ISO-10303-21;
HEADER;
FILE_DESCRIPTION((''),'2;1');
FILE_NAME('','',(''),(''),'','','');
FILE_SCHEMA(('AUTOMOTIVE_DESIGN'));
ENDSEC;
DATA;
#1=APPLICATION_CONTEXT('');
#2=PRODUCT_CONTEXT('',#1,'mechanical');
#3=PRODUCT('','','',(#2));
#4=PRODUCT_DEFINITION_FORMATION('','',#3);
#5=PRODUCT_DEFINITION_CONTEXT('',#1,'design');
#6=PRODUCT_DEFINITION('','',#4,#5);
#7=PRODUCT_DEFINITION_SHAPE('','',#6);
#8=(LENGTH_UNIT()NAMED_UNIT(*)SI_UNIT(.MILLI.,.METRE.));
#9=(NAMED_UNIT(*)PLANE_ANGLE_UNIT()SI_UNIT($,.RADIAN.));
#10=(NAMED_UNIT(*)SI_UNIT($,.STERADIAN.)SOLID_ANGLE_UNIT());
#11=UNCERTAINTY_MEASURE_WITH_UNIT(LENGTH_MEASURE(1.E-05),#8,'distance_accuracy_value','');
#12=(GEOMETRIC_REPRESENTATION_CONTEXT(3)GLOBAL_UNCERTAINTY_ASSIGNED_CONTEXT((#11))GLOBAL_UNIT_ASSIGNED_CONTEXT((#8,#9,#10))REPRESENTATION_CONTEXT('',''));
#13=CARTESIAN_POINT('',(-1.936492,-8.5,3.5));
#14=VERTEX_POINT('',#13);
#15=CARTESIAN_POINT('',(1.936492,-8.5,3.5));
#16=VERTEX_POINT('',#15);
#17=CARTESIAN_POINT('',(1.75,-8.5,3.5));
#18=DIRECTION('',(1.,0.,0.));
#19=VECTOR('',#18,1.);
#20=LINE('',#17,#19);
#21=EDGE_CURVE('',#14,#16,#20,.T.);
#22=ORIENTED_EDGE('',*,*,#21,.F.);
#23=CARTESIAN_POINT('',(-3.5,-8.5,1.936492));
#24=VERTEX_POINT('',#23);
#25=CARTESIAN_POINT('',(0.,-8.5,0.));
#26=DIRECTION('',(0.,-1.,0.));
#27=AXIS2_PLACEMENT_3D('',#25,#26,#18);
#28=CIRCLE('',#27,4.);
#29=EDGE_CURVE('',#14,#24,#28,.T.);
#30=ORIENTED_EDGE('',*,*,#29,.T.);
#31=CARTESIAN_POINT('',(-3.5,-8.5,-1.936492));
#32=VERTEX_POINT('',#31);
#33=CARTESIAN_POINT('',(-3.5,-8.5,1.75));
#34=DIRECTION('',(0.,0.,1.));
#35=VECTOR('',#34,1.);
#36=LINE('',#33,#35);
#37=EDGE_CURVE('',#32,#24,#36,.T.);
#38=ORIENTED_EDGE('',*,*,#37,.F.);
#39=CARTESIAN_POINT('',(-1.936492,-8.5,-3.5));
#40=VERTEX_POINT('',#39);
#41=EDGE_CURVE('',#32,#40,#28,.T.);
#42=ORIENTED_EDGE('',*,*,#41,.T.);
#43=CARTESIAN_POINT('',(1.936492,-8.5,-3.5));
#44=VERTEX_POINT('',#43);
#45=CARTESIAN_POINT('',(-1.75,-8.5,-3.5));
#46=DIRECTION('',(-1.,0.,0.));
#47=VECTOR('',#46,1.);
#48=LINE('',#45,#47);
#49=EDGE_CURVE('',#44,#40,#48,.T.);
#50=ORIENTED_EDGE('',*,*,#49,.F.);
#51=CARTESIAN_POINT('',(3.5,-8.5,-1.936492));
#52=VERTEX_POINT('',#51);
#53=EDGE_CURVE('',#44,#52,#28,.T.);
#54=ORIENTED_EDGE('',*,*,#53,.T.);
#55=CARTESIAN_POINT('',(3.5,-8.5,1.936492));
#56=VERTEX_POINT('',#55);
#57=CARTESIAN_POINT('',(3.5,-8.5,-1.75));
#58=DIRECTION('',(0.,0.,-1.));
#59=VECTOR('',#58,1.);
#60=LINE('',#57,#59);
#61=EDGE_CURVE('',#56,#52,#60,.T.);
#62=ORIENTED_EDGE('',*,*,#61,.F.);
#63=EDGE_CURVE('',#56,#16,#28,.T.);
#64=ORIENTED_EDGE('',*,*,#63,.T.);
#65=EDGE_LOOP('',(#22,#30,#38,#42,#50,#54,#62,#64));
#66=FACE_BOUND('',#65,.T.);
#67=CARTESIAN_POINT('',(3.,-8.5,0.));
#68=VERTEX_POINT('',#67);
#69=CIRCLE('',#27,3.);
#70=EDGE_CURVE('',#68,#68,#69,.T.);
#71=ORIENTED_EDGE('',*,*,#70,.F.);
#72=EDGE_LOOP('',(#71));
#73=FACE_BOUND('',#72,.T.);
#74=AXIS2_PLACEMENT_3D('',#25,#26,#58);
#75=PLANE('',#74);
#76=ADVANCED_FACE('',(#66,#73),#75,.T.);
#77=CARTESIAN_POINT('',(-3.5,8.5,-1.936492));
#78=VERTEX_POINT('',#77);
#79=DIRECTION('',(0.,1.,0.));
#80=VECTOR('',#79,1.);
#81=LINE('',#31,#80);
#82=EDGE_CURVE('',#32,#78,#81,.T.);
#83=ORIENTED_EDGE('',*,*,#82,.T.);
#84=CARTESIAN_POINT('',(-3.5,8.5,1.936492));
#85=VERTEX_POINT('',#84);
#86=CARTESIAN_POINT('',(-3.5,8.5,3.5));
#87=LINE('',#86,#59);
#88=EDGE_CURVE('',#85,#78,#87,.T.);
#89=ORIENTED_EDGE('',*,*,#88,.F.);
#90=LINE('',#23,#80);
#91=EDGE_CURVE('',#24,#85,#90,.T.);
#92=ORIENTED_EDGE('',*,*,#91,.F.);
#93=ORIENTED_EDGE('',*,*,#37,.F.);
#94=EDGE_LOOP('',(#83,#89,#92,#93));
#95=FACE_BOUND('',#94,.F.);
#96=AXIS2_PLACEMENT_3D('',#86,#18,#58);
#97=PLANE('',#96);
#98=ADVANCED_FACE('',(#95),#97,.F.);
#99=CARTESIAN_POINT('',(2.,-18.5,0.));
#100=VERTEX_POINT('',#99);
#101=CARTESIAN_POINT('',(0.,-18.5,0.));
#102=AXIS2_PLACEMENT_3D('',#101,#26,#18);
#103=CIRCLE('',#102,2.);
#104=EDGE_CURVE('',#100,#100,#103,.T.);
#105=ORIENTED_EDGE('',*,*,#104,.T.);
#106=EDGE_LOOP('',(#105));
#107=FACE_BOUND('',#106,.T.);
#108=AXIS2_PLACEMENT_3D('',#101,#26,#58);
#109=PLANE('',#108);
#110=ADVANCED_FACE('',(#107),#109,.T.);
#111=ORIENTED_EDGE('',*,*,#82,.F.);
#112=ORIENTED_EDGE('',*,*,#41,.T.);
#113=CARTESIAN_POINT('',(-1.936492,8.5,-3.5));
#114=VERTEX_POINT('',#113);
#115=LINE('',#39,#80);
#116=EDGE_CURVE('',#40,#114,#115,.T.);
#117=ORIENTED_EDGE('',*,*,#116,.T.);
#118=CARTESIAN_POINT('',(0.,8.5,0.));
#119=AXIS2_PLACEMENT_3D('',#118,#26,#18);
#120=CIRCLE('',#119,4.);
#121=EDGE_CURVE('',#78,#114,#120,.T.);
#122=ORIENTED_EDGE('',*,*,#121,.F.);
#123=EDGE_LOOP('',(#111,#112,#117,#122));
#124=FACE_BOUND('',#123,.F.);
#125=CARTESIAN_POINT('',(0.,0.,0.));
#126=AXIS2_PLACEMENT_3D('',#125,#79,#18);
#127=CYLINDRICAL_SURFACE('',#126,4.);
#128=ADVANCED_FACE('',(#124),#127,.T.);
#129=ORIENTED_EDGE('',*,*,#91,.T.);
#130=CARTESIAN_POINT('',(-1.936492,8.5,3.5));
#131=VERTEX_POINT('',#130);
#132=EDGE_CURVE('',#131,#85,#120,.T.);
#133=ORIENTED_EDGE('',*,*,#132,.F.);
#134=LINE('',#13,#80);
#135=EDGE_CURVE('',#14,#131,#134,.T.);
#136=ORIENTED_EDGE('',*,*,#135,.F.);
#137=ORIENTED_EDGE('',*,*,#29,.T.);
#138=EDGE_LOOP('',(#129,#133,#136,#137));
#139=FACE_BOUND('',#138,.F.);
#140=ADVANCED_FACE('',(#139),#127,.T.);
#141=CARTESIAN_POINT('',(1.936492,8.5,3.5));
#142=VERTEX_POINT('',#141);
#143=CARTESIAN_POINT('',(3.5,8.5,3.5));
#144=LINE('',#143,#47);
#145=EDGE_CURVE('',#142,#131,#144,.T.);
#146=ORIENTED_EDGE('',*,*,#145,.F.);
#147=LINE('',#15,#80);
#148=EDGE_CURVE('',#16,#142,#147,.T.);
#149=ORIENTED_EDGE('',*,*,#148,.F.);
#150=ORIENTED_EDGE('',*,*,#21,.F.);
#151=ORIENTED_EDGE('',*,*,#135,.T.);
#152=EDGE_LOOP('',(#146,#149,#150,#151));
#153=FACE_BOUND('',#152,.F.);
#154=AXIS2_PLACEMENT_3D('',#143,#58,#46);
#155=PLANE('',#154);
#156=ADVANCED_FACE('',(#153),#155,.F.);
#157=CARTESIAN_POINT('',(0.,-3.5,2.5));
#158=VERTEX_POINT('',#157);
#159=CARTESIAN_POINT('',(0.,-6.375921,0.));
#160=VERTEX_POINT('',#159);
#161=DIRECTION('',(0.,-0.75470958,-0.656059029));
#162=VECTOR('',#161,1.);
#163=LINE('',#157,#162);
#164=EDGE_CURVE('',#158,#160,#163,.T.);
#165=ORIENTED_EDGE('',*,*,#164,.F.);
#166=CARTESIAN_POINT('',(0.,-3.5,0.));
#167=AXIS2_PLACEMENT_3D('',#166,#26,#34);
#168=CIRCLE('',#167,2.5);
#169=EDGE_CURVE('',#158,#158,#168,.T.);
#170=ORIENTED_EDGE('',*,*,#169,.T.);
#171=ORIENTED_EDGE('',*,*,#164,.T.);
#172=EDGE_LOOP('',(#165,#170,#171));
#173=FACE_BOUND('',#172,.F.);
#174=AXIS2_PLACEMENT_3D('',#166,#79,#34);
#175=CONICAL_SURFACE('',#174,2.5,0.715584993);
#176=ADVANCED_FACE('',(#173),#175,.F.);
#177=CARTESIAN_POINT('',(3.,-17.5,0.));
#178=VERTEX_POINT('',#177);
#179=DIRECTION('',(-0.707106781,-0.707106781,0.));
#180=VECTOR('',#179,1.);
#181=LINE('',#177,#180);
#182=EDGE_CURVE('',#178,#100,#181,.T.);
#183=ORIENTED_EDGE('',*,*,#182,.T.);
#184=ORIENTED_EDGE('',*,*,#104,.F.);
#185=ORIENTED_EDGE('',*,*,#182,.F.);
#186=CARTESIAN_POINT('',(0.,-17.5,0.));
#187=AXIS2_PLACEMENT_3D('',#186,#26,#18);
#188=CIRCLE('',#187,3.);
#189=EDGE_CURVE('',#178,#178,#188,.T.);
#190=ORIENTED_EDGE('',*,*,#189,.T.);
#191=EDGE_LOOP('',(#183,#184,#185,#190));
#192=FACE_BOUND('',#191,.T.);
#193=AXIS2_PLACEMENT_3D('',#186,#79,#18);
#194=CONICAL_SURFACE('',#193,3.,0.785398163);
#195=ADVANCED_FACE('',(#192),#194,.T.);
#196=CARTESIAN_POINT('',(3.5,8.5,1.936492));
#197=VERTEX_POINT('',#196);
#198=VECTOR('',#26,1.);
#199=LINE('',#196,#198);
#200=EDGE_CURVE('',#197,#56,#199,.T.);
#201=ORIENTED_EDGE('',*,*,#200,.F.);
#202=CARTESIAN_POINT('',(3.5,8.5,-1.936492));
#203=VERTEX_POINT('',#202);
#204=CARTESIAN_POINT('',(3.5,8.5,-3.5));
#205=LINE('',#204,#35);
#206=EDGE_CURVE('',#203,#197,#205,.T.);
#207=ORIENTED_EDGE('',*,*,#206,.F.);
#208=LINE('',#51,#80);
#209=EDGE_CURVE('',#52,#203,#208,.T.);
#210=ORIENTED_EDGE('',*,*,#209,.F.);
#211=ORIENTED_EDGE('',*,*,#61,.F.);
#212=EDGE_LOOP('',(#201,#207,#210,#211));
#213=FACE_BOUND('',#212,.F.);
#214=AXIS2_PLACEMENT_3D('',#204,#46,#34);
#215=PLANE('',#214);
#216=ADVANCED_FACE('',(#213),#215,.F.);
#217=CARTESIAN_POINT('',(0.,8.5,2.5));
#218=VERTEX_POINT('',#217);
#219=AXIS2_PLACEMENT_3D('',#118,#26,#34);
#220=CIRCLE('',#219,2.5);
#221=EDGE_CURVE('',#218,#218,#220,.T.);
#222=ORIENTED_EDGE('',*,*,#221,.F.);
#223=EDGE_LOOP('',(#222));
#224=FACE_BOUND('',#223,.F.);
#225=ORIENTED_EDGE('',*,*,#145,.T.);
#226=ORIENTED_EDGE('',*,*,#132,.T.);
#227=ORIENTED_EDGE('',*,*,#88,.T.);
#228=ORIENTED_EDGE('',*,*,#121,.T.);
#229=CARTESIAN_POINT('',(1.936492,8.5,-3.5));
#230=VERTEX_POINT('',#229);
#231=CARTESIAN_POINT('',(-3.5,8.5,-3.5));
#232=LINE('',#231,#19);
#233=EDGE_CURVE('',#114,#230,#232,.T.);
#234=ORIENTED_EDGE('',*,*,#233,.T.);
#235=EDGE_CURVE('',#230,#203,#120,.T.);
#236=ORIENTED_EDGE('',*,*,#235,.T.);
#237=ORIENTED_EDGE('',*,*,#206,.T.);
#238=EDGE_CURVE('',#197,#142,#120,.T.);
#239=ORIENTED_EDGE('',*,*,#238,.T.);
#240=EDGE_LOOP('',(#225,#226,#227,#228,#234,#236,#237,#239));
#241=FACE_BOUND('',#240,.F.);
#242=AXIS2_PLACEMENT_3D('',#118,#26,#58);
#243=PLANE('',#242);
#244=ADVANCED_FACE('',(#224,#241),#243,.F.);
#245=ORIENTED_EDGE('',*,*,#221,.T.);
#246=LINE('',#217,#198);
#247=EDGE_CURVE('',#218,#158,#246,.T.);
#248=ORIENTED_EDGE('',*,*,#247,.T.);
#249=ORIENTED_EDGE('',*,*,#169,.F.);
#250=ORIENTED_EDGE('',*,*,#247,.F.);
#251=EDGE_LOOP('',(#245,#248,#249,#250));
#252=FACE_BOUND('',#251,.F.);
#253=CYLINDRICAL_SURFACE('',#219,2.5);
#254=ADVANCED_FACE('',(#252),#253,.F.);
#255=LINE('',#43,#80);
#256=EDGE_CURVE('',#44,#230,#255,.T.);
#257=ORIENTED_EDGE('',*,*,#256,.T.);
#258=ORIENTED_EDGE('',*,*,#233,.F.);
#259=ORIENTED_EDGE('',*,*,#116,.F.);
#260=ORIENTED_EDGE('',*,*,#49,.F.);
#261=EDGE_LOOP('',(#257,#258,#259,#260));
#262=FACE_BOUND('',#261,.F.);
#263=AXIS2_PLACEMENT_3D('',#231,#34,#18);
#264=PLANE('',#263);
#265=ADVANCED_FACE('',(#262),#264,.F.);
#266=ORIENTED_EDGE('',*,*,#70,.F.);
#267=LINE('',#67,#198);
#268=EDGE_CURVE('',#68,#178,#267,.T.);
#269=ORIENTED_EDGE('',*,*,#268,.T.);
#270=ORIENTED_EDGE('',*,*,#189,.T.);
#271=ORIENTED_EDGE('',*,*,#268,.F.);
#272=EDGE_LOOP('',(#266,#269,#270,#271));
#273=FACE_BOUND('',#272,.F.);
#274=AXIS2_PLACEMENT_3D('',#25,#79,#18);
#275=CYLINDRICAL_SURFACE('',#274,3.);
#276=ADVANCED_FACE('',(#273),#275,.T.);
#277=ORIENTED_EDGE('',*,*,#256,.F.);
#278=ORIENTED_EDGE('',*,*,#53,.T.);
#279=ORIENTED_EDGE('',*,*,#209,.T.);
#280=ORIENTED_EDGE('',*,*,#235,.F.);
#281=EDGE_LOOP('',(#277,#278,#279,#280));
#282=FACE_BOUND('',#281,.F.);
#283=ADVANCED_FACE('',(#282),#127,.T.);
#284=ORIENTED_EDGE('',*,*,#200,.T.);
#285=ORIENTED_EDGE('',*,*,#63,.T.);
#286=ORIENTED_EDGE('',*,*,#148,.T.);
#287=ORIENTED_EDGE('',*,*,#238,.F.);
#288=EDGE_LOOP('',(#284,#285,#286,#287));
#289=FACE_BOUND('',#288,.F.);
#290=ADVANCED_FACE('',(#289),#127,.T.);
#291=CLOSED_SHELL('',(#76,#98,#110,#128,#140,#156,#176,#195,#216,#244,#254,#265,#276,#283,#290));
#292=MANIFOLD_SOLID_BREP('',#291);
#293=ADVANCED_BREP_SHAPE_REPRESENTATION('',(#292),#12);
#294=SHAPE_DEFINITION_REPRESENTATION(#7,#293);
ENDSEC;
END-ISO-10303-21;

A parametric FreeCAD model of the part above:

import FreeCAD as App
import Part
import Sketcher

V = App.Vector
Q = App.Units.Quantity


def edges_at(feature, points):
    """Names of the edges that pass closest to the given points."""
    edges = feature.Shape.Edges
    near = lambda p: min(range(len(edges)), key=lambda i: edges[i].distToShape(Part.Vertex(*p))[0])
    return sorted({f"Edge{near(p) + 1}" for p in points})


def add_polygon(sketch, points):
    """Adds a closed chain of lines whose ends are joined by coincident constraints."""
    first, n = sketch.GeometryCount, len(points)
    for a, b in zip(points, points[1:] + points[:1]):
        sketch.addGeometry(Part.LineSegment(App.Vector(*a, 0), App.Vector(*b, 0)), False)
    for i in range(n):
        sketch.addConstraint(Sketcher.Constraint("Coincident", first + i, 2, first + (i + 1) % n, 1))

doc = App.newDocument("Part")
body = doc.addObject("PartDesign::Body", "Body")

sketch1 = doc.addObject("Sketcher::SketchObject", "Sketch")
body.addObject(sketch1)
sketch1.AttachmentSupport = (doc.XZ_Plane, [""])
sketch1.MapMode = "FlatFace"
sketch1.addGeometry(Part.Circle(V(0, 0, 0), V(0, 0, 1), 4), False)
sketch1.addConstraint([
    Sketcher.Constraint("Coincident", 0, 3, -1, 1),
    Sketcher.Constraint("Diameter", 0, Q("8 mm")),
])
pad1 = doc.addObject("PartDesign::Pad", "Pad")
body.addObject(pad1)
pad1.Profile = sketch1
pad1.Length = 17
pad1.Midplane = True

sketch2 = doc.addObject("Sketcher::SketchObject", "Sketch001")
body.addObject(sketch2)
sketch2.AttachmentSupport = (doc.XZ_Plane, [""])
sketch2.MapMode = "FlatFace"
sketch2.AttachmentOffset = App.Placement(V(0, 0, 8.5), App.Rotation())
sketch2.addGeometry(Part.Circle(V(0, 0, 0), V(0, 0, 1), 3), False)
sketch2.addConstraint([
    Sketcher.Constraint("Coincident", 0, 3, -1, 1),
    Sketcher.Constraint("Diameter", 0, Q("6 mm")),
])
pad2 = doc.addObject("PartDesign::Pad", "Pad001")
body.addObject(pad2)
pad2.Profile = sketch2
pad2.Length = 10
doc.recompute()

chamfer = doc.addObject("PartDesign::Chamfer", "Chamfer")
body.addObject(chamfer)
chamfer.Base = (pad2, edges_at(pad2, [(-3, -18.5, 0)]))
chamfer.Size = 1

sketch3 = doc.addObject("Sketcher::SketchObject", "Sketch002")
body.addObject(sketch3)
sketch3.AttachmentSupport = (doc.XZ_Plane, [""])
sketch3.MapMode = "FlatFace"
sketch3.AttachmentOffset = App.Placement(V(0, 0, -8.5), App.Rotation())
add_polygon(sketch3, [(5, -5), (-5, -5), (-5, 5), (5, 5)])
add_polygon(sketch3, [(-3.5, -3.5), (3.5, -3.5), (3.5, 3.5), (-3.5, 3.5)])
sketch3.addConstraint([
    Sketcher.Constraint("Horizontal", 0),
    Sketcher.Constraint("Vertical", 1),
    Sketcher.Constraint("Horizontal", 2),
    Sketcher.Constraint("Vertical", 3),
    Sketcher.Constraint("Horizontal", 4),
    Sketcher.Constraint("Vertical", 5),
    Sketcher.Constraint("Horizontal", 6),
    Sketcher.Constraint("Vertical", 7),
    Sketcher.Constraint("Symmetric", 0, 2, 2, 2, -1, 1),
    Sketcher.Constraint("Symmetric", 4, 2, 6, 2, -1, 1),
    Sketcher.Constraint("Equal", 2, 1),
    Sketcher.Constraint("Equal", 6, 5),
    Sketcher.Constraint("DistanceX", 0, 2, -1, 1, Q("5 mm")),
    Sketcher.Constraint("DistanceX", -1, 1, 4, 2, Q("3.5 mm")),
])
pocket1 = doc.addObject("PartDesign::Pocket", "Pocket")
body.addObject(pocket1)
pocket1.Profile = sketch3
pocket1.Type = "ThroughAll"
pocket1.Reversed = True

sketch4 = doc.addObject("Sketcher::SketchObject", "Sketch003")
body.addObject(sketch4)
sketch4.AttachmentSupport = (doc.XZ_Plane, [""])
sketch4.MapMode = "FlatFace"
sketch4.AttachmentOffset = App.Placement(V(0, 0, -8.5), App.Rotation())
sketch4.addGeometry(Part.Circle(V(0, 0, 0), V(0, 0, 1), 2.5), False)
sketch4.addConstraint([
    Sketcher.Constraint("Coincident", 0, 3, -1, 1),
    Sketcher.Constraint("Diameter", 0, Q("5 mm")),
])
doc.recompute()
hole = doc.addObject("PartDesign::Hole", "Hole")
body.addObject(hole)
hole.Profile = sketch4
hole.ThreadType = "None"
hole.Diameter = 5
hole.DepthType = "Dimension"
hole.Depth = 12
hole.DrillPoint = "Angled"
hole.DrillPointAngle = 82
hole.Reversed = True

doc.recompute()
